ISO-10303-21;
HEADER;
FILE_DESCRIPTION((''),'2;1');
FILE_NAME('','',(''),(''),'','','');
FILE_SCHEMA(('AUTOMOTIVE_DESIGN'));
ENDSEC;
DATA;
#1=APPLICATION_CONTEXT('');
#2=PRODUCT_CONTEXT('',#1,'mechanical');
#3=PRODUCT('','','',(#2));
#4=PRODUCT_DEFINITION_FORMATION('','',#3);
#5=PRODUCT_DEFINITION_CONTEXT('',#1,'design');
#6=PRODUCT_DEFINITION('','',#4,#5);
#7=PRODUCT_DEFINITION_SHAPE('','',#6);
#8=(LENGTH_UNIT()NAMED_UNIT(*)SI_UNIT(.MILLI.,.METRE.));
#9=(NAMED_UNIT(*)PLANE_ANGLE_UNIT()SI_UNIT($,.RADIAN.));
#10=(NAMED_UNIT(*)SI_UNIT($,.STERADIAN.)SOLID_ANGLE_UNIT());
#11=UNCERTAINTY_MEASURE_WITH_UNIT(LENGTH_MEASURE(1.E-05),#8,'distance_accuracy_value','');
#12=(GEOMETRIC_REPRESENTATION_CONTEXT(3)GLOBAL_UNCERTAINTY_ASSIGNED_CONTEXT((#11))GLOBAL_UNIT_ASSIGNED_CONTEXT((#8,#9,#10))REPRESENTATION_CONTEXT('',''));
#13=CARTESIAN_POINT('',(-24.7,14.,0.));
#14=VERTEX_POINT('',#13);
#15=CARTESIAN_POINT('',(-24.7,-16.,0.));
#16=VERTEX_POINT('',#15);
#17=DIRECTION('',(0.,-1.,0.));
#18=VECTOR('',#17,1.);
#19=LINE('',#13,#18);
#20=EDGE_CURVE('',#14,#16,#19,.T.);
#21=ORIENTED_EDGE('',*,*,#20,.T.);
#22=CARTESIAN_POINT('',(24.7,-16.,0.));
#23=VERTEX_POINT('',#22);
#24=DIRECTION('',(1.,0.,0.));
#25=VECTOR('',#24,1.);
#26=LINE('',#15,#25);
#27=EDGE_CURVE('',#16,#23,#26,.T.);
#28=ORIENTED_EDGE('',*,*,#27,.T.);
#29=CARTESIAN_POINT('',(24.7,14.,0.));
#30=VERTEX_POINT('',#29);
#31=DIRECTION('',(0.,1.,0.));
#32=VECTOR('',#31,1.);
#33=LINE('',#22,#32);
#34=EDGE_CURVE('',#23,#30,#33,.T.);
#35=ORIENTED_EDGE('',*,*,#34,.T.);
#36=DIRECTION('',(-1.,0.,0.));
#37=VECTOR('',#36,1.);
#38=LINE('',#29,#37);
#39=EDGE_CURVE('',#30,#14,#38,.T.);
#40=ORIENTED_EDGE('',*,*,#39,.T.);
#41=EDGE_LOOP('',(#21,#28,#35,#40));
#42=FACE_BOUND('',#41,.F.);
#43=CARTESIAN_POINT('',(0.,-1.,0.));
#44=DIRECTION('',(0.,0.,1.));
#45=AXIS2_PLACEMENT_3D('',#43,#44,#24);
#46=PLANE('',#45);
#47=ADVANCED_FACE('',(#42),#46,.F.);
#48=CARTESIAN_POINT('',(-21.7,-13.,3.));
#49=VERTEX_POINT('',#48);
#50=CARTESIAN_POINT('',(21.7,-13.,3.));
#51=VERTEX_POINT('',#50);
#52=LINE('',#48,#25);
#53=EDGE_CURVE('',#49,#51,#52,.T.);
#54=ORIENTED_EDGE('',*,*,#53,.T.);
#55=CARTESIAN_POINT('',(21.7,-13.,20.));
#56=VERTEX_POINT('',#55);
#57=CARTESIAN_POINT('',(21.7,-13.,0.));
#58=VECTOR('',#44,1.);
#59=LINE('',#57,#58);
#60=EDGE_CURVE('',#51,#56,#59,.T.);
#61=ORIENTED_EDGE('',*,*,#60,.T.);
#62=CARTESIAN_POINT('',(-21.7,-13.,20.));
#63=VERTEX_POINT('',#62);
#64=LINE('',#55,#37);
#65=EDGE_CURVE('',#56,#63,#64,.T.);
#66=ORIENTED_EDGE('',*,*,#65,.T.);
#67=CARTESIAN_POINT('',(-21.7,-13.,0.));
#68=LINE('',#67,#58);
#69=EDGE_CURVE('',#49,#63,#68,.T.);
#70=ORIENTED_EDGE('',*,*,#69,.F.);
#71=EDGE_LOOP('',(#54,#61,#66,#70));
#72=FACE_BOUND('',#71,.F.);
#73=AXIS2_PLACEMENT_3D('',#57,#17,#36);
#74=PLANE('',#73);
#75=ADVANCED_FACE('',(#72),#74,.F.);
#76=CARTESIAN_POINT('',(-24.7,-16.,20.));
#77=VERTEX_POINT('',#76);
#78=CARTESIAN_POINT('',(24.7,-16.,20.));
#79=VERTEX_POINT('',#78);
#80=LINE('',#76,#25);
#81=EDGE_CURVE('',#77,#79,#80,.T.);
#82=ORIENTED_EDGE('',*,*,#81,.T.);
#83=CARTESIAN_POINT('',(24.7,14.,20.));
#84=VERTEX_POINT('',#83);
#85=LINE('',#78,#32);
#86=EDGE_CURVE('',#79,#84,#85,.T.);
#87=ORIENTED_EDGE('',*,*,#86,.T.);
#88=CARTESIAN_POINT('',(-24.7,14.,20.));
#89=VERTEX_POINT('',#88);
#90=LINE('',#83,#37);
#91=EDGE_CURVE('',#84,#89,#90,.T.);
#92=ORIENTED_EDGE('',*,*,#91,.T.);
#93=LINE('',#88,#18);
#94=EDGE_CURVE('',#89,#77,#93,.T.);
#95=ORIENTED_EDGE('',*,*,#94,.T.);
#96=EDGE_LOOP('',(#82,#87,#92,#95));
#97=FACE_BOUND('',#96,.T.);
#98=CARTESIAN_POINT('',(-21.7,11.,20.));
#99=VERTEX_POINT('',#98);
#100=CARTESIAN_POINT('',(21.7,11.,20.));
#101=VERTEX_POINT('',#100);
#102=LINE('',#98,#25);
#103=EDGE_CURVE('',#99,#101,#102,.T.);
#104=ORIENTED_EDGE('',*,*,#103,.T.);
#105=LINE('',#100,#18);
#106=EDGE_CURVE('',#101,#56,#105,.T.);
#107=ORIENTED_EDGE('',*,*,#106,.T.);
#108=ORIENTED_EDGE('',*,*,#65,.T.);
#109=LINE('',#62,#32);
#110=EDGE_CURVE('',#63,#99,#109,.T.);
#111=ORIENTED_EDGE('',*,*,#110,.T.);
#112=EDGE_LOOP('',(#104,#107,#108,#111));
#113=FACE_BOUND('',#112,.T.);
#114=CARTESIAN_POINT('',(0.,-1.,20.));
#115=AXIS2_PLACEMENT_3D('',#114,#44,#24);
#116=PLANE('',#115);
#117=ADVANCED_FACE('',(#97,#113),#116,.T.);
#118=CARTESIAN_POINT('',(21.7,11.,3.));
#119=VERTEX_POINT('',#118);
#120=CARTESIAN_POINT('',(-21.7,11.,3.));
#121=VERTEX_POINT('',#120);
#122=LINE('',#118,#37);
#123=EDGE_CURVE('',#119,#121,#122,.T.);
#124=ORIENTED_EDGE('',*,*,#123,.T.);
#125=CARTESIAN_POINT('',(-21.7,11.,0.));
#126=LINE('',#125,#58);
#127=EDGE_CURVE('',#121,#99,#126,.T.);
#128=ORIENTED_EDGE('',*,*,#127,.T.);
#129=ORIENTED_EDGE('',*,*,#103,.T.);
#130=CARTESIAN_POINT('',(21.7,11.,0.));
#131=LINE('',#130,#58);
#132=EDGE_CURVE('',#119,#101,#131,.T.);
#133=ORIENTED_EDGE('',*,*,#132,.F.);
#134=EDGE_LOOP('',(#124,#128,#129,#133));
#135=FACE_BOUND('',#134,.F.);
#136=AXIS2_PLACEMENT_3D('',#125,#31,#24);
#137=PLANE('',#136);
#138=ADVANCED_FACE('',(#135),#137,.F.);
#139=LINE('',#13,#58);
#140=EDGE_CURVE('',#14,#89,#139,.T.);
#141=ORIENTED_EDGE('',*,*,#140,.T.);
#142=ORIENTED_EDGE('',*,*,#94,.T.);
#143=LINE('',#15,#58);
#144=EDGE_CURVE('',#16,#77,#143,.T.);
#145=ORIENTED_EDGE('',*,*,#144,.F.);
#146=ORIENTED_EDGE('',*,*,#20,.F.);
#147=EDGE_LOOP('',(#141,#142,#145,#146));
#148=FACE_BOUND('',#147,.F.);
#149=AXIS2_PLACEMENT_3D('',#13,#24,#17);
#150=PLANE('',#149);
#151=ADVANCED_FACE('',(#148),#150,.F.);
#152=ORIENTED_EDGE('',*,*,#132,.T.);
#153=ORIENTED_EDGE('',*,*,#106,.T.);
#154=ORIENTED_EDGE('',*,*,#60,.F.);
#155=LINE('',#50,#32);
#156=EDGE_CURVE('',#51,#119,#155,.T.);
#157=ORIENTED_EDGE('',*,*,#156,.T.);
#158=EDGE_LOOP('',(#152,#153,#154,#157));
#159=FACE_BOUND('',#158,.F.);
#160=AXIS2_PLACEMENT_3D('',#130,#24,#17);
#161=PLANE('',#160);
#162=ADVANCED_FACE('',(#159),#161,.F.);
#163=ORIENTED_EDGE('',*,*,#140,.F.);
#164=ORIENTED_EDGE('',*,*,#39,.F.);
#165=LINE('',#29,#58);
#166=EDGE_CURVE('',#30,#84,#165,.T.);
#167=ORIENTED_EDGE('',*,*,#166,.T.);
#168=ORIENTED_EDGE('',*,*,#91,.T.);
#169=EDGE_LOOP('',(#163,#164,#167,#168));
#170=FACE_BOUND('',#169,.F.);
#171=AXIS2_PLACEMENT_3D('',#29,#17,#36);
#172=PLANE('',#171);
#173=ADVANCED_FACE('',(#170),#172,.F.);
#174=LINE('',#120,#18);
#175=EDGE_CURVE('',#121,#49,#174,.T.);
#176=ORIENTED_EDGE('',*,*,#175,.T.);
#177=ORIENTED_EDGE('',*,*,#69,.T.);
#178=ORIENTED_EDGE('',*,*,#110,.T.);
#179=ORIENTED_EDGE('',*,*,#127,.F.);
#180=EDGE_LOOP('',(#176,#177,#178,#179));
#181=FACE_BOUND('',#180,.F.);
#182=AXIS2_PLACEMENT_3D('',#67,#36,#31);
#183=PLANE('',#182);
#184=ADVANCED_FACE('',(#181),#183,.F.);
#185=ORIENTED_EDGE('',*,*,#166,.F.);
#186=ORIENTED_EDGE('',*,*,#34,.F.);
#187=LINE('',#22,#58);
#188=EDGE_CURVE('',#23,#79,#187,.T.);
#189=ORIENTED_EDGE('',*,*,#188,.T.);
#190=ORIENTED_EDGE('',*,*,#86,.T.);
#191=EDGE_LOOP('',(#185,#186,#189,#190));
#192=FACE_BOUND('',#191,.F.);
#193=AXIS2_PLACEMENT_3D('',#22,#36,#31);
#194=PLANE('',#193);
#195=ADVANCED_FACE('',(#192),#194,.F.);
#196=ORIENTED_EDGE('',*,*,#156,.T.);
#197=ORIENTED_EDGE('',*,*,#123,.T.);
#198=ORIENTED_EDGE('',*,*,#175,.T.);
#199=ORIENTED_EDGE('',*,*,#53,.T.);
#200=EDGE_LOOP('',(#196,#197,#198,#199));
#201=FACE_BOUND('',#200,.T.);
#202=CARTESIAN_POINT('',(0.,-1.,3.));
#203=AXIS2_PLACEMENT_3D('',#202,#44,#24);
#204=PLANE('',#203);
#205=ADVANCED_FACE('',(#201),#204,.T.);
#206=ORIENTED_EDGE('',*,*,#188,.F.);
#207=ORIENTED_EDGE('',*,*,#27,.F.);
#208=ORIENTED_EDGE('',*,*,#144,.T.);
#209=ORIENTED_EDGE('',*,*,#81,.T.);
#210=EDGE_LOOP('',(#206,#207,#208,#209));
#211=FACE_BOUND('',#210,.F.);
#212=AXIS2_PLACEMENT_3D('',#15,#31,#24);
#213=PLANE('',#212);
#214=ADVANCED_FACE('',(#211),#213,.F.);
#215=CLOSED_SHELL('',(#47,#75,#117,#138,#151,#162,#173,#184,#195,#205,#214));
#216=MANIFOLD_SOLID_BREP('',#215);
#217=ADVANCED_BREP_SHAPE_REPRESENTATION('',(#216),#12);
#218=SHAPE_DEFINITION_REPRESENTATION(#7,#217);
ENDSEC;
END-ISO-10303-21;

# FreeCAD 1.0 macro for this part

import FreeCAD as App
import Part
import Sketcher
from FreeCAD import Vector
Q = App.Units.Quantity

doc = App.newDocument("Part")
body = doc.addObject("PartDesign::Body", "Body")

sketch1 = doc.addObject("Sketcher::SketchObject", "Sketch")
body.addObject(sketch1)
sketch1.AttachmentSupport = (doc.XY_Plane, [""])
sketch1.MapMode = "FlatFace"
sketch1.addGeometry([
    Part.LineSegment(Vector(25, 14, 0), Vector(-25, 14, 0)),
    Part.LineSegment(Vector(-25, 14, 0), Vector(-25, -16, 0)),
    Part.LineSegment(Vector(-25, -16, 0), Vector(25, -16, 0)),
    Part.LineSegment(Vector(25, -16, 0), Vector(25, 14, 0)),
    Part.LineSegment(Vector(22, 11, 0), Vector(22, -13, 0)),
    Part.LineSegment(Vector(22, -13, 0), Vector(-22, -13, 0)),
    Part.LineSegment(Vector(-22, -13, 0), Vector(-22, 11, 0)),
    Part.LineSegment(Vector(-22, 11, 0), Vector(22, 11, 0)),
], False)
sketch1.addConstraint([
    Sketcher.Constraint("Coincident", 0, 2, 1, 1),
    Sketcher.Constraint("Coincident", 1, 2, 2, 1),
    Sketcher.Constraint("Coincident", 2, 2, 3, 1),
    Sketcher.Constraint("Coincident", 3, 2, 0, 1),
    Sketcher.Constraint("Coincident", 4, 2, 5, 1),
    Sketcher.Constraint("Coincident", 5, 2, 6, 1),
    Sketcher.Constraint("Coincident", 6, 2, 7, 1),
    Sketcher.Constraint("Coincident", 7, 2, 4, 1),
    Sketcher.Constraint("Horizontal", 0),
    Sketcher.Constraint("Vertical", 1),
    Sketcher.Constraint("Horizontal", 2),
    Sketcher.Constraint("Vertical", 3),
    Sketcher.Constraint("Vertical", 4),
    Sketcher.Constraint("Horizontal", 5),
    Sketcher.Constraint("Vertical", 6),
    Sketcher.Constraint("Horizontal", 7),
    Sketcher.Constraint("DistanceY", 1, 2, 1, 1, Q("30 mm")),
    Sketcher.Constraint("DistanceY", 4, 2, 4, 1, Q("24 mm")),
    Sketcher.Constraint("DistanceX", 0, 2, 0, 1, Q("49.4 mm")),
    Sketcher.Constraint("DistanceX", 5, 2, 5, 1, Q("43.4 mm")),
    Sketcher.Constraint("DistanceY", -1, 1, 0, 2, Q("14 mm")),
    Sketcher.Constraint("DistanceY", 4, 2, -1, 1, Q("13 mm")),
    Sketcher.Constraint("DistanceX", 4, 2, 2, 2, Q("3 mm")),
    Sketcher.Constraint("DistanceX", 0, 2, -1, 1, Q("24.7 mm")),
])
pad1 = doc.addObject("PartDesign::Pad", "Pad")
body.addObject(pad1)
pad1.Profile = sketch1
pad1.Length = 20

sketch2 = doc.addObject("Sketcher::SketchObject", "Sketch001")
body.addObject(sketch2)
sketch2.AttachmentSupport = (doc.XY_Plane, [""])
sketch2.MapMode = "FlatFace"
sketch2.addGeometry([
    Part.LineSegment(Vector(-22, 11, 0), Vector(-22, -13, 0)),
    Part.LineSegment(Vector(-22, -13, 0), Vector(22, -13, 0)),
    Part.LineSegment(Vector(22, -13, 0), Vector(22, 11, 0)),
    Part.LineSegment(Vector(22, 11, 0), Vector(-22, 11, 0)),
], False)
sketch2.addConstraint([
    Sketcher.Constraint("Coincident", 0, 2, 1, 1),
    Sketcher.Constraint("Coincident", 1, 2, 2, 1),
    Sketcher.Constraint("Coincident", 2, 2, 3, 1),
    Sketcher.Constraint("Coincident", 3, 2, 0, 1),
    Sketcher.Constraint("Vertical", 0),
    Sketcher.Constraint("Horizontal", 1),
    Sketcher.Constraint("Vertical", 2),
    Sketcher.Constraint("Horizontal", 3),
    Sketcher.Constraint("DistanceY", 0, 2, 0, 1, Q("24 mm")),
    Sketcher.Constraint("DistanceX", 1, 1, 1, 2, Q("43.4 mm")),
    Sketcher.Constraint("DistanceY", 0, 2, -1, 1, Q("13 mm")),
    Sketcher.Constraint("DistanceX", 0, 2, -1, 1, Q("21.7 mm")),
])
pad2 = doc.addObject("PartDesign::Pad", "Pad001")
body.addObject(pad2)
pad2.Profile = sketch2
pad2.Length = 3

doc.recompute()
